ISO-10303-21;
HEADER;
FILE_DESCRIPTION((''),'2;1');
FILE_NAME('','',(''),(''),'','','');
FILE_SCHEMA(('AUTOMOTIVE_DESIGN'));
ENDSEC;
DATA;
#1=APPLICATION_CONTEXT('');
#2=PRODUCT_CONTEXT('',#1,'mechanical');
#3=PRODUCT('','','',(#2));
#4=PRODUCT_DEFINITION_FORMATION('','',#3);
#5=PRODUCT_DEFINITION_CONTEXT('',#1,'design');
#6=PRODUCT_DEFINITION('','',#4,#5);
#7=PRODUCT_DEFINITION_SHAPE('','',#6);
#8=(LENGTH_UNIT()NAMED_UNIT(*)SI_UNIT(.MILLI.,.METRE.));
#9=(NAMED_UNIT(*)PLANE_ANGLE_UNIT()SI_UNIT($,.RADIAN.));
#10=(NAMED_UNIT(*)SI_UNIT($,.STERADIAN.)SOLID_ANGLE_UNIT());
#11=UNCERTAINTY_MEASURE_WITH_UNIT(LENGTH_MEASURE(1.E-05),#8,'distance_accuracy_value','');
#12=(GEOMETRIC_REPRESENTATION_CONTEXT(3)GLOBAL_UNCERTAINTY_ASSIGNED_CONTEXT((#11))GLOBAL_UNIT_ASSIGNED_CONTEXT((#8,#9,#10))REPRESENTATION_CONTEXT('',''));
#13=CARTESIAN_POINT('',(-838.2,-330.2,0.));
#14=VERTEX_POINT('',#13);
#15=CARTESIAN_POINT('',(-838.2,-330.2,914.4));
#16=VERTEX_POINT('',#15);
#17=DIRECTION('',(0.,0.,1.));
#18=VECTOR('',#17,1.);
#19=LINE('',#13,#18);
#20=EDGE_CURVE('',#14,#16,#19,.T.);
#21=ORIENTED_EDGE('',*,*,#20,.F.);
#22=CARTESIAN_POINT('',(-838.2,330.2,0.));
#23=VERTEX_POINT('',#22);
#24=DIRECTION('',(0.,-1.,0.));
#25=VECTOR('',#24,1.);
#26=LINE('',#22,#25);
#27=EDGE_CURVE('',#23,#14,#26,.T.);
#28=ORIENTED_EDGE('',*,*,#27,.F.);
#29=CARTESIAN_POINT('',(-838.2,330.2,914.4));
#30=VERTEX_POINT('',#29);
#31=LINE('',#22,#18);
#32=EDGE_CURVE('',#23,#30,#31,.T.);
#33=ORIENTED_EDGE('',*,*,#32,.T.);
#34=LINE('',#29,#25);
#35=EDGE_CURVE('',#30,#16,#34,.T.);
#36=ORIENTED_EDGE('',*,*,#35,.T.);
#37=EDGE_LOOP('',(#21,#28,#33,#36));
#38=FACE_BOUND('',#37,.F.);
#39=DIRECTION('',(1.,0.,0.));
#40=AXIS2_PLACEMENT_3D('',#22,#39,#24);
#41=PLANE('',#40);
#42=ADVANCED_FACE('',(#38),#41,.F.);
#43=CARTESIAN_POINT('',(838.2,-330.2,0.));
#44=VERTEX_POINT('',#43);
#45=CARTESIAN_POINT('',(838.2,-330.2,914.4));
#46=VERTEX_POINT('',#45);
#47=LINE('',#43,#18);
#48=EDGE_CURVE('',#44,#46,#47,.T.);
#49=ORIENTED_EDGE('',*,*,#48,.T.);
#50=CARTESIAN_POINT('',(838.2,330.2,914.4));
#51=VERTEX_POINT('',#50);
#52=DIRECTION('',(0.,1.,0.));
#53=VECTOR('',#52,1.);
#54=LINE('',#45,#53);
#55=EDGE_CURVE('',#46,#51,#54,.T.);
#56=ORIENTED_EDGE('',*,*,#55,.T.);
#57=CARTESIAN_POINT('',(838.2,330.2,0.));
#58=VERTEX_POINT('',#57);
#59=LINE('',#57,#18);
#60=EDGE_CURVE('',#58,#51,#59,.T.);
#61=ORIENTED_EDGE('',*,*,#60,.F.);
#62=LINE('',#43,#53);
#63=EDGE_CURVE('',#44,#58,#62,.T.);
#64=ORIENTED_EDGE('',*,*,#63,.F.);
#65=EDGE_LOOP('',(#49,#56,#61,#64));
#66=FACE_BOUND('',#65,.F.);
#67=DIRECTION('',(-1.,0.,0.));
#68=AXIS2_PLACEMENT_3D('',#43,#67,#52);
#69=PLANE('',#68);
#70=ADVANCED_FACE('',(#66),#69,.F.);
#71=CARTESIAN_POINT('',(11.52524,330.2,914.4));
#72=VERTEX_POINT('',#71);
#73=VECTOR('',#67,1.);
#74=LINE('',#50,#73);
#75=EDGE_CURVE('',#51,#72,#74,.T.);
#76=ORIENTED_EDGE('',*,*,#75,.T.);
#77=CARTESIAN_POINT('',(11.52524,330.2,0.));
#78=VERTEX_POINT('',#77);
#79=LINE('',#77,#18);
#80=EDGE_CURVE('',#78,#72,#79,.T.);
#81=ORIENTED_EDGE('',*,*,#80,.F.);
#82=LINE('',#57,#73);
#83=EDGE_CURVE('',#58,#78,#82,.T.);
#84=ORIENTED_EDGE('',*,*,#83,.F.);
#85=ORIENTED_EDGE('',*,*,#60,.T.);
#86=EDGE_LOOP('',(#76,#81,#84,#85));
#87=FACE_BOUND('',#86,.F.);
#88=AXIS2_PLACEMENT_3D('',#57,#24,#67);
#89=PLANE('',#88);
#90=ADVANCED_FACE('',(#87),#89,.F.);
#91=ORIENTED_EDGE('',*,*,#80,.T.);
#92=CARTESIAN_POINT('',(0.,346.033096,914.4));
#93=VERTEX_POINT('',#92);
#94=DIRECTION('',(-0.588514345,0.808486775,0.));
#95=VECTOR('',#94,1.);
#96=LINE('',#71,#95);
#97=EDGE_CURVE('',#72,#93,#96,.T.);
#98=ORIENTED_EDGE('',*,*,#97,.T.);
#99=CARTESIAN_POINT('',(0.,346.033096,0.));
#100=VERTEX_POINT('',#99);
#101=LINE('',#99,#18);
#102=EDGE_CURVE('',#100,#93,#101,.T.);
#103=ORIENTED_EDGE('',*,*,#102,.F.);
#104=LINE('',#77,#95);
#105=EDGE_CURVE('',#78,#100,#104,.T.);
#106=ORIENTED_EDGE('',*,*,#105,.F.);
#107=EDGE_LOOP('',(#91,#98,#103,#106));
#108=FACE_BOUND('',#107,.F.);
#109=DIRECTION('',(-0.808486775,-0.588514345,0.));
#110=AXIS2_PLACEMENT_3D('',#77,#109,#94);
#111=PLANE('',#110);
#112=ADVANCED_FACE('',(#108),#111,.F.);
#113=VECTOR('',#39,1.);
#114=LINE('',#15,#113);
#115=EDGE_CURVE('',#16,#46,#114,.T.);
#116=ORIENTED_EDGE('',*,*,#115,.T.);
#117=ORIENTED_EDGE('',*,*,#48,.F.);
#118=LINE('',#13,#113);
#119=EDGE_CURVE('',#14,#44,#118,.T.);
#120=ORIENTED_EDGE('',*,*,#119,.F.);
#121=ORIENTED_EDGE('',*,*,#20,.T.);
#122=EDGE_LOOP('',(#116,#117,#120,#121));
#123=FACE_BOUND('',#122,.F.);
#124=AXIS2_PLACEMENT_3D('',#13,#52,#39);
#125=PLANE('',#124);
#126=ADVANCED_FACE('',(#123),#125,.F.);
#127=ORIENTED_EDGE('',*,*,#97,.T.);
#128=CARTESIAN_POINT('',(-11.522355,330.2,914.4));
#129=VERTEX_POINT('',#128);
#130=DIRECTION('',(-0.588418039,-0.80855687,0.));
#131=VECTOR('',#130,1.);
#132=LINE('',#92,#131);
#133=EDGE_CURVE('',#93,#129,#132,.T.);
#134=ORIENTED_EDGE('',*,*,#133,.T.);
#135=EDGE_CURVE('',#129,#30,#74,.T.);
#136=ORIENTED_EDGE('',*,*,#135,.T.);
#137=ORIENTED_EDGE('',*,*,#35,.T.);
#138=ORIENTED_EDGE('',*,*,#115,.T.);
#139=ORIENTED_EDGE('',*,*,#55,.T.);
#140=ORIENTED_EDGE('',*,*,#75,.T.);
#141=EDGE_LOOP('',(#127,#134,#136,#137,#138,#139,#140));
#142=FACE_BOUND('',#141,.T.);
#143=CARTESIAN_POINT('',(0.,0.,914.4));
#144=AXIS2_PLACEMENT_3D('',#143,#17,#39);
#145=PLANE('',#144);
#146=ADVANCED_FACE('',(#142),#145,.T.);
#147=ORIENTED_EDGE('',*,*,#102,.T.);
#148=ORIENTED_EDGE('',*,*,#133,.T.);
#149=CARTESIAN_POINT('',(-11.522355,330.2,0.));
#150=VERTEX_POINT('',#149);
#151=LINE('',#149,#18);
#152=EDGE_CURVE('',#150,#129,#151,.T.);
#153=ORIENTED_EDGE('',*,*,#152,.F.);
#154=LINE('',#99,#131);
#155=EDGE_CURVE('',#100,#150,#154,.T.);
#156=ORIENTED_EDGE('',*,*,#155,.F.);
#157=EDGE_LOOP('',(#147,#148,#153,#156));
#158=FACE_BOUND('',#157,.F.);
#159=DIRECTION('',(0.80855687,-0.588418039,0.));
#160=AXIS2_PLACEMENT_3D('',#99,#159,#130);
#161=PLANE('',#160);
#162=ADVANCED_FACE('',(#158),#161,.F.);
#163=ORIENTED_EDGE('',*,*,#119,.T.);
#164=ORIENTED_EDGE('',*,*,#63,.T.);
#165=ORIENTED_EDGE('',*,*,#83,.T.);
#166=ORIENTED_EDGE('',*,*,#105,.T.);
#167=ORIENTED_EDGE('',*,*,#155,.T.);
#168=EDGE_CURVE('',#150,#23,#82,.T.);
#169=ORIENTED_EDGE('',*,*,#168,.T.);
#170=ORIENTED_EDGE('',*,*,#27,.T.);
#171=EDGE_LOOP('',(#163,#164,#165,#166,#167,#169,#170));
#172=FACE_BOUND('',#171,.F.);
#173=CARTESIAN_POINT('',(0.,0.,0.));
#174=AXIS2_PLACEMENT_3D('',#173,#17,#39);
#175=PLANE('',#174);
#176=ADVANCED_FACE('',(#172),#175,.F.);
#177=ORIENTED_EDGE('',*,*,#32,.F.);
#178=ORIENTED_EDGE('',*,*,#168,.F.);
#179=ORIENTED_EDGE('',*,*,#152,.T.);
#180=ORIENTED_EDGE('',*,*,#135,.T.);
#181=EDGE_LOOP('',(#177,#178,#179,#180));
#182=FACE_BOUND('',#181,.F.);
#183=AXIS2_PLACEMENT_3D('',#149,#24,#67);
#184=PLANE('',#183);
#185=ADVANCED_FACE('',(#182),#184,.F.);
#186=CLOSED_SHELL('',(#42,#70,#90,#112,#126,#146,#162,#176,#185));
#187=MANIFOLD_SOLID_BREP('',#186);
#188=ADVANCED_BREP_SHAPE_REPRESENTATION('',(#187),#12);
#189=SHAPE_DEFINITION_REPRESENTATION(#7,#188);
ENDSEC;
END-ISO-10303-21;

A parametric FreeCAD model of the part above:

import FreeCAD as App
import Part
import Sketcher
Q = App.Units.Quantity


def add_polygon(sketch, points):
    """Adds a closed chain of lines whose ends are joined by coincident constraints."""
    first, n = sketch.GeometryCount, len(points)
    for a, b in zip(points, points[1:] + points[:1]):
        sketch.addGeometry(Part.LineSegment(App.Vector(*a, 0), App.Vector(*b, 0)), False)
    for i in range(n):
        sketch.addConstraint(Sketcher.Constraint("Coincident", first + i, 2, first + (i + 1) % n, 1))

doc = App.newDocument("Part")
body = doc.addObject("PartDesign::Body", "Body")

sketch1 = body.newObject("Sketcher::SketchObject", "Sketch")
sketch1.AttachmentSupport = (doc.getObject("XY_Plane"), [""])
sketch1.MapMode = "FlatFace"
add_polygon(sketch1, [(-838.2, 330.2), (-838.2, -330.2), (838.2, -330.2), (838.2, 330.2), (11.52524, 330.2), (0, 346.033096), (-11.522355, 330.2)])
sketch1.addConstraint(Sketcher.Constraint("Vertical", 0))
sketch1.addConstraint(Sketcher.Constraint("Horizontal", 1))
sketch1.addConstraint(Sketcher.Constraint("Vertical", 2))
sketch1.addConstraint(Sketcher.Constraint("Horizontal", 3))
sketch1.addConstraint(Sketcher.Constraint("Horizontal", 6))
sketch1.addConstraint(Sketcher.Constraint("Symmetric", 0, 2, 2, 2, -1, 1))
sketch1.addConstraint(Sketcher.Constraint("PointOnObject", 4, 2, -2))
sketch1.addConstraint(Sketcher.Constraint("Horizontal", 3, 2, 5, 2))
sketch1.addConstraint(Sketcher.Constraint("DistanceX", 1, 1, 1, 2, Q("66 in")))
sketch1.addConstraint(Sketcher.Constraint("DistanceY", 0, 2, 0, 1, Q("26 in")))
sketch1.addConstraint(Sketcher.Constraint("DistanceX", 3, 2, 3, 1, Q("826.67476 mm")))
sketch1.addConstraint(Sketcher.Constraint("Distance", 5, Q("19.58192 mm")))
sketch1.addConstraint(Sketcher.Constraint("DistanceX", 6, 2, 6, 1, Q("826.677645 mm")))
pad1 = body.newObject("PartDesign::Pad", "Pad")
pad1.Profile = sketch1
pad1.Length = Q("36 in")

doc.recompute()
